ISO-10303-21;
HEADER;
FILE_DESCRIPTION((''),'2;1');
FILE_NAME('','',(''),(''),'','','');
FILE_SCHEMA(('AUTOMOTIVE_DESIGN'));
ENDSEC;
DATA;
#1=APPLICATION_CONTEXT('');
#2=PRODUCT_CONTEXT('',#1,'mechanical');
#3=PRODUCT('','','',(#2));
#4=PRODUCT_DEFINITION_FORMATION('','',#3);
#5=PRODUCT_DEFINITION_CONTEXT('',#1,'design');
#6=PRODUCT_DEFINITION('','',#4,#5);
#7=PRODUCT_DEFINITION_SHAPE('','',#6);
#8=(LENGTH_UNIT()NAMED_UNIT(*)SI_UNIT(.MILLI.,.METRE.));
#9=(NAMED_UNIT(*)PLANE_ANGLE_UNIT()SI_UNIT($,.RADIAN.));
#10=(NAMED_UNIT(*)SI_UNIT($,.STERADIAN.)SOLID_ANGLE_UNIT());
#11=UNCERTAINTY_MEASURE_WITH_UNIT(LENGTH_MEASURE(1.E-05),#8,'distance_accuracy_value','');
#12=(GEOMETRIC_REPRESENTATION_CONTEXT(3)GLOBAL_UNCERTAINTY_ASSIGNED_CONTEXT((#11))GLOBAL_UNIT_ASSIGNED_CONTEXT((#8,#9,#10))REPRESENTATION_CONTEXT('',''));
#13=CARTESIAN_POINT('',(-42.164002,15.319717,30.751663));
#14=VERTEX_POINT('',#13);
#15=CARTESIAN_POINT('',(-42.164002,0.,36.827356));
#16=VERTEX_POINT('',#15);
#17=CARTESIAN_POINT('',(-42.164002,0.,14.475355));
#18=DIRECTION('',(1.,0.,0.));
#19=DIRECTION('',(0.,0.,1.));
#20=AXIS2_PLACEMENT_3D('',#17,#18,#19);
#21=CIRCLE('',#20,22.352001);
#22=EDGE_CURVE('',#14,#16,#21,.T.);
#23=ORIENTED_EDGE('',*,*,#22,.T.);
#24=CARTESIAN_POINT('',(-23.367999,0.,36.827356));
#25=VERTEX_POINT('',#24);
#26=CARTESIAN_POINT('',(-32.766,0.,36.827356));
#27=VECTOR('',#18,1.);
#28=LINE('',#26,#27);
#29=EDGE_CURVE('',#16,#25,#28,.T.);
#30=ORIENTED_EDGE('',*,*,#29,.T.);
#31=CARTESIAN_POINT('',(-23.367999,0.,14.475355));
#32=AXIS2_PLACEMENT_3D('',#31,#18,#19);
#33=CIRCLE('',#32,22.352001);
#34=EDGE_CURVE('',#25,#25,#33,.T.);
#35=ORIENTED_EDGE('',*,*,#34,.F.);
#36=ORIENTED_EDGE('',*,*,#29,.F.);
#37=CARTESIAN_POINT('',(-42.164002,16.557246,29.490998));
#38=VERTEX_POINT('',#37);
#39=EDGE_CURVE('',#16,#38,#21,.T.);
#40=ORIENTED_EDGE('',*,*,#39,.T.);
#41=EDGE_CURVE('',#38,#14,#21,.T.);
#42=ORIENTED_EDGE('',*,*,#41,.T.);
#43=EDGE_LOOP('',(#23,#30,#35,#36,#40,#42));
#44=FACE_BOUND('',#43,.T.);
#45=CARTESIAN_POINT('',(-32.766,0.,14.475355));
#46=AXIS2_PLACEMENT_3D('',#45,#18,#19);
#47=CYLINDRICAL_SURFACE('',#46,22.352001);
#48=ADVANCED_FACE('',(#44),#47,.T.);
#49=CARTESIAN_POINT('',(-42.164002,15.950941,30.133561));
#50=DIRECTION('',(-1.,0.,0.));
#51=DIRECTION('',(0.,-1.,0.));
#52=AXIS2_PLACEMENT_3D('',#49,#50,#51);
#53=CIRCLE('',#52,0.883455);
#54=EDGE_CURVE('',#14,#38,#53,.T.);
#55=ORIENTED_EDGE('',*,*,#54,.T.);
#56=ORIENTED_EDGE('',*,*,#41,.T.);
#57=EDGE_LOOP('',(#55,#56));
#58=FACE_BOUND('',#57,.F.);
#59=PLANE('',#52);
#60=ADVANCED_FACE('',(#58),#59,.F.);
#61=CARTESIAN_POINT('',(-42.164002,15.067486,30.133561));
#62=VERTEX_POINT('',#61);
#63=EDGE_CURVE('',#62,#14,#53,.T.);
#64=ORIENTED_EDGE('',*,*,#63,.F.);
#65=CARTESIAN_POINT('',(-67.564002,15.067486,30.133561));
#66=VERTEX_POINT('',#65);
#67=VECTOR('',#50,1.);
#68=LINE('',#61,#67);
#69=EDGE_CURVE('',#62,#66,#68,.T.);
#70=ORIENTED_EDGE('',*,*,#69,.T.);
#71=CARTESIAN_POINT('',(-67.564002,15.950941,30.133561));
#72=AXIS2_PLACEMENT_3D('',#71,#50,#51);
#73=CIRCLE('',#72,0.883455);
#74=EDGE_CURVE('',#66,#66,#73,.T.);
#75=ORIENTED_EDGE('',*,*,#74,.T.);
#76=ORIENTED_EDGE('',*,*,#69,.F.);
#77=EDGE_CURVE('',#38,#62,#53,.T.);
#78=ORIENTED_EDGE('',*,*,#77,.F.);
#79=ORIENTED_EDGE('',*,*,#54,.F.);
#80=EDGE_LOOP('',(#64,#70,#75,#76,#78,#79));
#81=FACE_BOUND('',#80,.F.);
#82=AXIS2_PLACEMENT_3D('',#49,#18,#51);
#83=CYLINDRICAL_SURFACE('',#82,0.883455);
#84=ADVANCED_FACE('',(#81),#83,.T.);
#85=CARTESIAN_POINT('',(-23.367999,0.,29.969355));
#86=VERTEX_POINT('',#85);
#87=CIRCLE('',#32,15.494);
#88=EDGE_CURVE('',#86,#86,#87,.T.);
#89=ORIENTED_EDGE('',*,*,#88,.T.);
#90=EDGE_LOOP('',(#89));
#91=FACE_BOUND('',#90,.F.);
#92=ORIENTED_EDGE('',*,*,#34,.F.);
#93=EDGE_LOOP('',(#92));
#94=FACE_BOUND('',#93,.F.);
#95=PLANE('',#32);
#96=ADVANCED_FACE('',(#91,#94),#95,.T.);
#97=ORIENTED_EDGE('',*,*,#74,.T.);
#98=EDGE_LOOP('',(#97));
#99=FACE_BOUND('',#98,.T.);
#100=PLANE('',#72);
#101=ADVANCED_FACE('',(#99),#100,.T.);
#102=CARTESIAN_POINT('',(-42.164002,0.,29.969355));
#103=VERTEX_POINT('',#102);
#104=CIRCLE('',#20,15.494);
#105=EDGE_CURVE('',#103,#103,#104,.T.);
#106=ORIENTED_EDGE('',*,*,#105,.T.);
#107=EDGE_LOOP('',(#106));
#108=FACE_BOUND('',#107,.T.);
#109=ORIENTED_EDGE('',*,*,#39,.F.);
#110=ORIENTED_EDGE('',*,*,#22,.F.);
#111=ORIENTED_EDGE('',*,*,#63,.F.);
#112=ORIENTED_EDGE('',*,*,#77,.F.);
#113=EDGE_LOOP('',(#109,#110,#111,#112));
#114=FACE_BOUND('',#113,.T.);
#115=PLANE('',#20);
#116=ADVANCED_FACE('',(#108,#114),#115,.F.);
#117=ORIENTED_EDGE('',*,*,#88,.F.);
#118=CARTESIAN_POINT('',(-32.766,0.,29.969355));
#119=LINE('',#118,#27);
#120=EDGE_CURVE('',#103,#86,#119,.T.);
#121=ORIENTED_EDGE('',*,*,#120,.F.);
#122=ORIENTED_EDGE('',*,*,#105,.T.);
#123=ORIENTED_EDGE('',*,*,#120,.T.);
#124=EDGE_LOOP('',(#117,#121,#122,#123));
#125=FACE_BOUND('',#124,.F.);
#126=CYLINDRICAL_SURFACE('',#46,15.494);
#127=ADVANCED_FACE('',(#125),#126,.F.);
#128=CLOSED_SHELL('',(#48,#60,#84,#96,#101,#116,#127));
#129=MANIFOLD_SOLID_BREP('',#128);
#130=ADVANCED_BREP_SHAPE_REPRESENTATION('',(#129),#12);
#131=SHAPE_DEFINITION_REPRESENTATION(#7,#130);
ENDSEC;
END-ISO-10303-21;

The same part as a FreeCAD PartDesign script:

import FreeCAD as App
import Part
import Sketcher
from FreeCAD import Vector
Q = App.Units.Quantity


def add_polygon(sketch, points):
    """Adds a closed chain of lines whose ends are joined by coincident constraints."""
    first, n = sketch.GeometryCount, len(points)
    for a, b in zip(points, points[1:] + points[:1]):
        sketch.addGeometry(Part.LineSegment(App.Vector(*a, 0), App.Vector(*b, 0)), False)
    for i in range(n):
        sketch.addConstraint(Sketcher.Constraint("Coincident", first + i, 2, first + (i + 1) % n, 1))

doc = App.newDocument("Part")
body = doc.addObject("PartDesign::Body", "Body")

sketch1 = body.newObject("Sketcher::SketchObject", "Sketch")
sketch1.AttachmentSupport = (doc.getObject("XZ_Plane"), [""])
sketch1.MapMode = "FlatFace"
add_polygon(sketch1, [(-42, 37), (-42, 30), (-23, 30), (-23, 37)])
sketch1.addGeometry(Part.LineSegment(Vector(-42, 14, 0), Vector(-23, 14, 0)), True)
sketch1.addConstraint(Sketcher.Constraint("Vertical", 0))
sketch1.addConstraint(Sketcher.Constraint("Horizontal", 1))
sketch1.addConstraint(Sketcher.Constraint("Vertical", 2))
sketch1.addConstraint(Sketcher.Constraint("Horizontal", 3))
sketch1.addConstraint(Sketcher.Constraint("Horizontal", 4))
sketch1.addConstraint(Sketcher.Constraint("Vertical", 3, 2, 4, 1))
sketch1.addConstraint(Sketcher.Constraint("Vertical", 2, 2, 4, 2))
sketch1.addConstraint(Sketcher.Constraint("DistanceX", 1, 1, 1, 2, Q("0.7400001 in")))
sketch1.addConstraint(Sketcher.Constraint("DistanceY", 0, 2, 0, 1, Q("0.27 in")))
sketch1.addConstraint(Sketcher.Constraint("DistanceX", 0, 2, -1, 1, Q("1.6600001 in")))
sketch1.addConstraint(Sketcher.Constraint("DistanceY", 4, 1, 0, 2, Q("0.61 in")))
sketch1.addConstraint(Sketcher.Constraint("DistanceY", -1, 1, 0, 2, 29.969355))
revolution = body.newObject("PartDesign::Revolution", "Revolution")
revolution.Profile = sketch1
revolution.ReferenceAxis = (sketch1, ["Axis0"])
revolution.Angle = 360

sketch2 = body.newObject("Sketcher::SketchObject", "Sketch001")
sketch2.AttachmentSupport = (doc.getObject("YZ_Plane"), [""])
sketch2.MapMode = "FlatFace"
sketch2.AttachmentOffset = App.Placement(Vector(0, 0, -1.6600001 * 25.4), App.Rotation())
sketch2.addGeometry(Part.Circle(Vector(16, 30.1, 0), Vector(0, 0, 1), 0.9), False)
sketch2.addConstraint(Sketcher.Constraint("Diameter", 0, 1.76691))
sketch2.addConstraint(Sketcher.Constraint("DistanceX", -1, 1, 0, 3, 15.950941))
sketch2.addConstraint(Sketcher.Constraint("DistanceY", -1, 1, 0, 3, 30.133561))
pad1 = body.newObject("PartDesign::Pad", "Pad")
pad1.Profile = sketch2
pad1.Length = Q("1 in")
pad1.Reversed = True

doc.recompute()
